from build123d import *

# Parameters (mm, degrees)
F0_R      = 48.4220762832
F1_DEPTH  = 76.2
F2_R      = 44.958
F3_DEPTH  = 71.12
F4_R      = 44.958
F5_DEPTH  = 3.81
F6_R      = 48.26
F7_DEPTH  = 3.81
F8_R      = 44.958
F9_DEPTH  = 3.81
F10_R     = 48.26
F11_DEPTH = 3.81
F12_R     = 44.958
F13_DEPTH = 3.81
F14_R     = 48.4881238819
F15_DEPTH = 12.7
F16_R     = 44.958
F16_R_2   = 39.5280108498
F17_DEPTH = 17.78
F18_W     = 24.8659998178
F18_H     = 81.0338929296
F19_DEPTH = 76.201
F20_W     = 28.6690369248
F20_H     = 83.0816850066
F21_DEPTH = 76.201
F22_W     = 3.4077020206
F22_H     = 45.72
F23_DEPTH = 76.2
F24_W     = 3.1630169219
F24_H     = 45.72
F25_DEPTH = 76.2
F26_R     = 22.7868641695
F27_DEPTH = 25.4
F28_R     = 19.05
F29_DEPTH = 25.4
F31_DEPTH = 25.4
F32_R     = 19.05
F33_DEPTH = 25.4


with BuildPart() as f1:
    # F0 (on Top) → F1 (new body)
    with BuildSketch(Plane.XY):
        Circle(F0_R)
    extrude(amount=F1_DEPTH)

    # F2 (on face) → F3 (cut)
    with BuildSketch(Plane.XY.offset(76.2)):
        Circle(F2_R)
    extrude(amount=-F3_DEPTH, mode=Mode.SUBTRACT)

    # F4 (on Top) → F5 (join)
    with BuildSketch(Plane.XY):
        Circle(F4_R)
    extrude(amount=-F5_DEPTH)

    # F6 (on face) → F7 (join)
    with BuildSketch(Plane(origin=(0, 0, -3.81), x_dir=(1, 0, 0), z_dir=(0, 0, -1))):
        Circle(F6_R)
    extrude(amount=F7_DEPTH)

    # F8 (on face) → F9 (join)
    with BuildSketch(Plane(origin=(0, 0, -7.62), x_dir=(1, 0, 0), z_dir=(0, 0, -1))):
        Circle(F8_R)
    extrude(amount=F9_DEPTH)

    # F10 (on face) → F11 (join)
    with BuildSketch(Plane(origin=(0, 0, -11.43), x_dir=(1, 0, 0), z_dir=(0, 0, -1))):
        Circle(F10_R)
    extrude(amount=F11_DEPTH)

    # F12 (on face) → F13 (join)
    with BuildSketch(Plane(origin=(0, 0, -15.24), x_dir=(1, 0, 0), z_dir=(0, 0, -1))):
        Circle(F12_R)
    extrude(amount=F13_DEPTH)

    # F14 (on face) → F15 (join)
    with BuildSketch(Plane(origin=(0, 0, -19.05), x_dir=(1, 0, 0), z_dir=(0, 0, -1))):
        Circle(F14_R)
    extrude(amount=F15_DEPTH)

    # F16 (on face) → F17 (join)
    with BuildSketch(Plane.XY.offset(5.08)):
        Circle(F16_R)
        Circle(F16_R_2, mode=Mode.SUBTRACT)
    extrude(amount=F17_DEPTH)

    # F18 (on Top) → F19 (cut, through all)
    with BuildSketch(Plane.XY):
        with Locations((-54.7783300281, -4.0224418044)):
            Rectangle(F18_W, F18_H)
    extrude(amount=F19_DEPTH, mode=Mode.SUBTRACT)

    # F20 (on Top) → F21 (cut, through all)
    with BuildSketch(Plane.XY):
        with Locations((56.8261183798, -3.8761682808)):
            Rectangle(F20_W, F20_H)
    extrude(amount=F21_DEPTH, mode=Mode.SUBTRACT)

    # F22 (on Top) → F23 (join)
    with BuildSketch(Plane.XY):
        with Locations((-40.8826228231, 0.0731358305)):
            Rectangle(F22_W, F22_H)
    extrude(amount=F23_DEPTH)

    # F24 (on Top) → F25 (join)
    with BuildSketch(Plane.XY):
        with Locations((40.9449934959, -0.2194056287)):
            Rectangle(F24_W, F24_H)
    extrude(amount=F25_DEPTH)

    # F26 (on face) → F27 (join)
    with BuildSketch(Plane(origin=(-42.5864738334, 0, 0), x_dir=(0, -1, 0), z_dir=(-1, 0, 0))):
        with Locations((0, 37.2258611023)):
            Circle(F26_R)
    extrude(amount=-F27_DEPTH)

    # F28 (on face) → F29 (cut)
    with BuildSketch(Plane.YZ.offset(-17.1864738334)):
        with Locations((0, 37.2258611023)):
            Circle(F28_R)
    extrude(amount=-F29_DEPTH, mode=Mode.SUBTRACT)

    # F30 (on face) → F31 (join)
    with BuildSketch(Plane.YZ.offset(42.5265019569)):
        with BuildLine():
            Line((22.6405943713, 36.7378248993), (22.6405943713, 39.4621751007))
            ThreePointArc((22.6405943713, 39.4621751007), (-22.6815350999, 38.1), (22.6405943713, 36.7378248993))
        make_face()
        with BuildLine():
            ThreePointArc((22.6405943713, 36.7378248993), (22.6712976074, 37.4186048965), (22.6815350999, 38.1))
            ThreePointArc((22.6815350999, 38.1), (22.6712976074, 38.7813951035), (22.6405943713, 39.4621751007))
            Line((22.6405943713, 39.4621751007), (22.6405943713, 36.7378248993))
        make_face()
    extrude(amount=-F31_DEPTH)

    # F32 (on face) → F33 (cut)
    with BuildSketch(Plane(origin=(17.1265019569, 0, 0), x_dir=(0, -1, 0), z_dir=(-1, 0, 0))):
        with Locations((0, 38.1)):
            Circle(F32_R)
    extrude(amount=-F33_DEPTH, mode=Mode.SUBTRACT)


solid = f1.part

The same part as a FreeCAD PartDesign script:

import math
import FreeCAD as App
import Part
import Sketcher

V = App.Vector
Q = App.Units.Quantity


def add_polygon(sketch, points):
    """Adds a closed chain of lines whose ends are joined by coincident constraints."""
    first, n = sketch.GeometryCount, len(points)
    for a, b in zip(points, points[1:] + points[:1]):
        sketch.addGeometry(Part.LineSegment(App.Vector(*a, 0), App.Vector(*b, 0)), False)
    for i in range(n):
        sketch.addConstraint(Sketcher.Constraint("Coincident", first + i, 2, first + (i + 1) % n, 1))

doc = App.newDocument("Part")
body = doc.addObject("PartDesign::Body", "Body")

sketch1 = body.newObject("Sketcher::SketchObject", "Sketch")
sketch1.AttachmentSupport = (doc.getObject("XY_Plane"), [""])
sketch1.MapMode = "FlatFace"
sketch1.addGeometry(Part.Circle(V(0, 0, 0), V(0, 0, 1), 48), False)
sketch1.addConstraint([
    Sketcher.Constraint("Coincident", 0, 3, -1, 1),
    Sketcher.Constraint("Diameter", 0, 96.844153),
])
pad1 = body.newObject("PartDesign::Pad", "Pad")
pad1.Profile = sketch1
pad1.Length = Q("3 in")

sketch2 = body.newObject("Sketcher::SketchObject", "Sketch001")
sketch2.AttachmentSupport = (doc.getObject("XY_Plane"), [""])
sketch2.MapMode = "FlatFace"
sketch2.AttachmentOffset = App.Placement(V(0, 0, 3 * 25.4), App.Rotation())
sketch2.addGeometry(Part.Circle(V(0, 0, 0), V(0, 0, 1), 45), False)
sketch2.addConstraint([
    Sketcher.Constraint("Coincident", 0, 3, -1, 1),
    Sketcher.Constraint("Diameter", 0, Q("3.54 in")),
])
pocket1 = body.newObject("PartDesign::Pocket", "Pocket")
pocket1.Profile = sketch2
pocket1.Length = Q("2.8 in")

sketch3 = body.newObject("Sketcher::SketchObject", "Sketch002")
sketch3.AttachmentSupport = (doc.getObject("XY_Plane"), [""])
sketch3.MapMode = "FlatFace"
sketch3.addGeometry(Part.Circle(V(0, 0, 0), V(0, 0, 1), 45), False)
sketch3.addConstraint([
    Sketcher.Constraint("Coincident", 0, 3, -1, 1),
    Sketcher.Constraint("Diameter", 0, Q("3.54 in")),
])
pad2 = body.newObject("PartDesign::Pad", "Pad001")
pad2.Profile = sketch3
pad2.Length = Q("0.15 in")
pad2.Reversed = True

sketch4 = body.newObject("Sketcher::SketchObject", "Sketch003")
sketch4.AttachmentSupport = (doc.getObject("XY_Plane"), [""])
sketch4.MapMode = "FlatFace"
sketch4.AttachmentOffset = App.Placement(V(0, 0, -0.15 * 25.4), App.Rotation())
sketch4.addGeometry(Part.Circle(V(0, 0, 0), V(0, 0, 1), 48), False)
sketch4.addConstraint([
    Sketcher.Constraint("Coincident", 0, 3, -1, 1),
    Sketcher.Constraint("Diameter", 0, Q("3.8 in")),
])
pad3 = body.newObject("PartDesign::Pad", "Pad002")
pad3.Profile = sketch4
pad3.Length = Q("0.15 in")
pad3.Reversed = True

sketch5 = body.newObject("Sketcher::SketchObject", "Sketch004")
sketch5.AttachmentSupport = (doc.getObject("XY_Plane"), [""])
sketch5.MapMode = "FlatFace"
sketch5.AttachmentOffset = App.Placement(V(0, 0, -0.3 * 25.4), App.Rotation())
sketch5.addGeometry(Part.Circle(V(0, 0, 0), V(0, 0, 1), 45), False)
sketch5.addConstraint([
    Sketcher.Constraint("Coincident", 0, 3, -1, 1),
    Sketcher.Constraint("Diameter", 0, Q("3.54 in")),
])
pad4 = body.newObject("PartDesign::Pad", "Pad003")
pad4.Profile = sketch5
pad4.Length = Q("0.15 in")
pad4.Reversed = True

sketch6 = body.newObject("Sketcher::SketchObject", "Sketch005")
sketch6.AttachmentSupport = (doc.getObject("XY_Plane"), [""])
sketch6.MapMode = "FlatFace"
sketch6.AttachmentOffset = App.Placement(V(0, 0, -0.45 * 25.4), App.Rotation())
sketch6.addGeometry(Part.Circle(V(0, 0, 0), V(0, 0, 1), 48), False)
sketch6.addConstraint([
    Sketcher.Constraint("Coincident", 0, 3, -1, 1),
    Sketcher.Constraint("Diameter", 0, Q("3.8 in")),
])
pad5 = body.newObject("PartDesign::Pad", "Pad004")
pad5.Profile = sketch6
pad5.Length = Q("0.15 in")
pad5.Reversed = True

sketch7 = body.newObject("Sketcher::SketchObject", "Sketch006")
sketch7.AttachmentSupport = (doc.getObject("XY_Plane"), [""])
sketch7.MapMode = "FlatFace"
sketch7.AttachmentOffset = App.Placement(V(0, 0, -0.6 * 25.4), App.Rotation())
sketch7.addGeometry(Part.Circle(V(0, 0, 0), V(0, 0, 1), 45), False)
sketch7.addConstraint([
    Sketcher.Constraint("Coincident", 0, 3, -1, 1),
    Sketcher.Constraint("Diameter", 0, Q("3.54 in")),
])
pad6 = body.newObject("PartDesign::Pad", "Pad005")
pad6.Profile = sketch7
pad6.Length = Q("0.15 in")
pad6.Reversed = True

sketch8 = body.newObject("Sketcher::SketchObject", "Sketch007")
sketch8.AttachmentSupport = (doc.getObject("XY_Plane"), [""])
sketch8.MapMode = "FlatFace"
sketch8.AttachmentOffset = App.Placement(V(0, 0, -0.75 * 25.4), App.Rotation())
sketch8.addGeometry(Part.Circle(V(0, 0, 0), V(0, 0, 1), 48), False)
sketch8.addConstraint([
    Sketcher.Constraint("Coincident", 0, 3, -1, 1),
    Sketcher.Constraint("Diameter", 0, 96.976248),
])
pad7 = body.newObject("PartDesign::Pad", "Pad006")
pad7.Profile = sketch8
pad7.Length = Q("0.5 in")
pad7.Reversed = True

sketch9 = body.newObject("Sketcher::SketchObject", "Sketch008")
sketch9.AttachmentSupport = (doc.getObject("XY_Plane"), [""])
sketch9.MapMode = "FlatFace"
sketch9.AttachmentOffset = App.Placement(V(0, 0, 0.2 * 25.4), App.Rotation())
sketch9.addGeometry([
    Part.Circle(V(0, 0, 0), V(0, 0, 1), 45),
    Part.Circle(V(0, 0, 0), V(0, 0, 1), 40),
], False)
sketch9.addConstraint([
    Sketcher.Constraint("Coincident", 0, 3, -1, 1),
    Sketcher.Constraint("Coincident", 1, 3, -1, 1),
    Sketcher.Constraint("Diameter", 0, Q("3.54 in")),
    Sketcher.Constraint("Diameter", 1, 79.056022),
])
pad8 = body.newObject("PartDesign::Pad", "Pad007")
pad8.Profile = sketch9
pad8.Length = Q("0.7 in")

sketch10 = body.newObject("Sketcher::SketchObject", "Sketch009")
sketch10.AttachmentSupport = (doc.getObject("XY_Plane"), [""])
sketch10.MapMode = "FlatFace"
add_polygon(sketch10, [(-67, 36), (-67, -45), (-42, -45), (-42, 36)])
sketch10.addConstraint([
    Sketcher.Constraint("Vertical", 0),
    Sketcher.Constraint("Horizontal", 1),
    Sketcher.Constraint("Vertical", 2),
    Sketcher.Constraint("Horizontal", 3),
    Sketcher.Constraint("DistanceX", 1, 1, 1, 2, 24.866),
    Sketcher.Constraint("DistanceY", 0, 2, 0, 1, 81.033893),
    Sketcher.Constraint("DistanceX", 0, 2, -1, 1, 67.21133),
    Sketcher.Constraint("DistanceY", 0, 2, -1, 1, 44.539388),
])
pocket2 = body.newObject("PartDesign::Pocket", "Pocket001")
pocket2.Profile = sketch10
pocket2.Type = "ThroughAll"
pocket2.Reversed = True

sketch11 = body.newObject("Sketcher::SketchObject", "Sketch010")
sketch11.AttachmentSupport = (doc.getObject("XY_Plane"), [""])
sketch11.MapMode = "FlatFace"
add_polygon(sketch11, [(42, 38), (42, -45), (71, -45), (71, 38)])
sketch11.addConstraint([
    Sketcher.Constraint("Vertical", 0),
    Sketcher.Constraint("Horizontal", 1),
    Sketcher.Constraint("Vertical", 2),
    Sketcher.Constraint("Horizontal", 3),
    Sketcher.Constraint("DistanceX", -1, 1, 1, 2, Q("2.8015999 in")),
    Sketcher.Constraint("DistanceX", -1, 1, 0, 2, 42.4916),
    Sketcher.Constraint("DistanceY", 0, 2, 0, 1, 83.081685),
    Sketcher.Constraint("DistanceY", 0, 2, -1, 1, 45.417011),
])
pocket3 = body.newObject("PartDesign::Pocket", "Pocket002")
pocket3.Profile = sketch11
pocket3.Type = "ThroughAll"
pocket3.Reversed = True

sketch12 = body.newObject("Sketcher::SketchObject", "Sketch011")
sketch12.AttachmentSupport = (doc.getObject("XY_Plane"), [""])
sketch12.MapMode = "FlatFace"
add_polygon(sketch12, [(-42.6, 22.9), (-42.6, -22.8), (-39.2, -22.8), (-39.2, 22.9)])
sketch12.addConstraint([
    Sketcher.Constraint("Vertical", 0),
    Sketcher.Constraint("Horizontal", 1),
    Sketcher.Constraint("Vertical", 2),
    Sketcher.Constraint("Horizontal", 3),
    Sketcher.Constraint("DistanceY", 0, 2, 0, 1, Q("1.8 in")),
    Sketcher.Constraint("DistanceX", 1, 1, 1, 2, 3.407702),
    Sketcher.Constraint("DistanceX", 1, 2, -1, 1, 39.178772),
    Sketcher.Constraint("DistanceY", 0, 2, -1, 1, 22.786864),
])
pad9 = body.newObject("PartDesign::Pad", "Pad008")
pad9.Profile = sketch12
pad9.Length = Q("3 in")

sketch13 = body.newObject("Sketcher::SketchObject", "Sketch012")
sketch13.AttachmentSupport = (doc.getObject("XY_Plane"), [""])
sketch13.MapMode = "FlatFace"
add_polygon(sketch13, [(39.4, 22.6), (39.4, -23.1), (42.5, -23.1), (42.5, 22.6)])
sketch13.addConstraint([
    Sketcher.Constraint("Vertical", 0),
    Sketcher.Constraint("Horizontal", 1),
    Sketcher.Constraint("Vertical", 2),
    Sketcher.Constraint("Horizontal", 3),
    Sketcher.Constraint("DistanceY", 0, 2, 0, 1, Q("1.8 in")),
    Sketcher.Constraint("DistanceX", -1, 1, 1, 2, 42.526502),
    Sketcher.Constraint("DistanceX", 1, 1, 1, 2, 3.163017),
    Sketcher.Constraint("DistanceY", 0, 2, -1, 1, 23.079406),
])
pad10 = body.newObject("PartDesign::Pad", "Pad009")
pad10.Profile = sketch13
pad10.Length = Q("3 in")

sketch14 = body.newObject("Sketcher::SketchObject", "Sketch013")
sketch14.AttachmentSupport = (doc.getObject("YZ_Plane"), [""])
sketch14.MapMode = "FlatFace"
sketch14.AttachmentOffset = App.Placement(V(0, 0, -42.586474), App.Rotation())
sketch14.addGeometry(Part.Circle(V(0, 37, 0), V(0, 0, 1), 23), False)
sketch14.addConstraint([
    Sketcher.Constraint("PointOnObject", 0, 3, -2),
    Sketcher.Constraint("Diameter", 0, 45.573728),
    Sketcher.Constraint("DistanceY", -1, 1, 0, 3, 37.225861),
])
pad11 = body.newObject("PartDesign::Pad", "Pad010")
pad11.Profile = sketch14
pad11.Length = Q("1 in")

sketch15 = body.newObject("Sketcher::SketchObject", "Sketch014")
sketch15.AttachmentSupport = (doc.getObject("YZ_Plane"), [""])
sketch15.MapMode = "FlatFace"
sketch15.AttachmentOffset = App.Placement(V(0, 0, -17.186474), App.Rotation())
sketch15.addGeometry(Part.Circle(V(0, 37, 0), V(0, 0, 1), 19), False)
sketch15.addConstraint([
    Sketcher.Constraint("PointOnObject", 0, 3, -2),
    Sketcher.Constraint("Diameter", 0, Q("1.5 in")),
    Sketcher.Constraint("DistanceY", -1, 1, 0, 3, 37.225861),
])
pocket4 = body.newObject("PartDesign::Pocket", "Pocket003")
pocket4.Profile = sketch15
pocket4.Length = Q("1 in")

sketch16 = body.newObject("Sketcher::SketchObject", "Sketch015")
sketch16.AttachmentSupport = (doc.getObject("YZ_Plane"), [""])
sketch16.MapMode = "FlatFace"
sketch16.AttachmentOffset = App.Placement(V(0, 0, 42.526502), App.Rotation())
sketch16.addGeometry([
    Part.ArcOfCircle(Part.Circle(V(0, 38.1, 0), V(0, 0, 1), 22.7), math.radians(3), math.radians(357)),
    Part.ArcOfCircle(Part.Circle(V(0, 38.1, 0), V(0, 0, 1), 22.7), math.radians(-3.44), math.radians(0)),
    Part.ArcOfCircle(Part.Circle(V(0, 38.1, 0), V(0, 0, 1), 22.7), math.radians(0), math.radians(3.44)),
], False)
sketch16.addConstraint([
    Sketcher.Constraint("Tangent", 0, 2, 1, 1),
    Sketcher.Constraint("Tangent", 1, 2, 2, 1),
    Sketcher.Constraint("Coincident", 2, 2, 0, 1),
    Sketcher.Constraint("Equal", 0, 1),
    Sketcher.Constraint("PointOnObject", 0, 3, -2),
    Sketcher.Constraint("Horizontal", 2, 3, 1, 2),
    Sketcher.Constraint("Vertical", 0, 2, 2, 2),
    Sketcher.Constraint("DistanceY", -1, 1, 0, 3, Q("1.5 in")),
    Sketcher.Constraint("Radius", 0, 22.681535),
    Sketcher.Constraint("DistanceX", 0, 2, 1, 2, 0.040941),
])
pad12 = body.newObject("PartDesign::Pad", "Pad011")
pad12.Profile = sketch16
pad12.Length = Q("1 in")
pad12.Reversed = True

sketch17 = body.newObject("Sketcher::SketchObject", "Sketch016")
sketch17.AttachmentSupport = (doc.getObject("YZ_Plane"), [""])
sketch17.MapMode = "FlatFace"
sketch17.AttachmentOffset = App.Placement(V(0, 0, 17.126502), App.Rotation())
sketch17.addGeometry(Part.Circle(V(0, 38, 0), V(0, 0, 1), 19), False)
sketch17.addConstraint([
    Sketcher.Constraint("PointOnObject", 0, 3, -2),
    Sketcher.Constraint("Diameter", 0, Q("1.5 in")),
    Sketcher.Constraint("DistanceY", -1, 1, 0, 3, Q("1.5 in")),
])
pocket5 = body.newObject("PartDesign::Pocket", "Pocket004")
pocket5.Profile = sketch17
pocket5.Length = Q("1 in")
pocket5.Reversed = True

doc.recompute()
